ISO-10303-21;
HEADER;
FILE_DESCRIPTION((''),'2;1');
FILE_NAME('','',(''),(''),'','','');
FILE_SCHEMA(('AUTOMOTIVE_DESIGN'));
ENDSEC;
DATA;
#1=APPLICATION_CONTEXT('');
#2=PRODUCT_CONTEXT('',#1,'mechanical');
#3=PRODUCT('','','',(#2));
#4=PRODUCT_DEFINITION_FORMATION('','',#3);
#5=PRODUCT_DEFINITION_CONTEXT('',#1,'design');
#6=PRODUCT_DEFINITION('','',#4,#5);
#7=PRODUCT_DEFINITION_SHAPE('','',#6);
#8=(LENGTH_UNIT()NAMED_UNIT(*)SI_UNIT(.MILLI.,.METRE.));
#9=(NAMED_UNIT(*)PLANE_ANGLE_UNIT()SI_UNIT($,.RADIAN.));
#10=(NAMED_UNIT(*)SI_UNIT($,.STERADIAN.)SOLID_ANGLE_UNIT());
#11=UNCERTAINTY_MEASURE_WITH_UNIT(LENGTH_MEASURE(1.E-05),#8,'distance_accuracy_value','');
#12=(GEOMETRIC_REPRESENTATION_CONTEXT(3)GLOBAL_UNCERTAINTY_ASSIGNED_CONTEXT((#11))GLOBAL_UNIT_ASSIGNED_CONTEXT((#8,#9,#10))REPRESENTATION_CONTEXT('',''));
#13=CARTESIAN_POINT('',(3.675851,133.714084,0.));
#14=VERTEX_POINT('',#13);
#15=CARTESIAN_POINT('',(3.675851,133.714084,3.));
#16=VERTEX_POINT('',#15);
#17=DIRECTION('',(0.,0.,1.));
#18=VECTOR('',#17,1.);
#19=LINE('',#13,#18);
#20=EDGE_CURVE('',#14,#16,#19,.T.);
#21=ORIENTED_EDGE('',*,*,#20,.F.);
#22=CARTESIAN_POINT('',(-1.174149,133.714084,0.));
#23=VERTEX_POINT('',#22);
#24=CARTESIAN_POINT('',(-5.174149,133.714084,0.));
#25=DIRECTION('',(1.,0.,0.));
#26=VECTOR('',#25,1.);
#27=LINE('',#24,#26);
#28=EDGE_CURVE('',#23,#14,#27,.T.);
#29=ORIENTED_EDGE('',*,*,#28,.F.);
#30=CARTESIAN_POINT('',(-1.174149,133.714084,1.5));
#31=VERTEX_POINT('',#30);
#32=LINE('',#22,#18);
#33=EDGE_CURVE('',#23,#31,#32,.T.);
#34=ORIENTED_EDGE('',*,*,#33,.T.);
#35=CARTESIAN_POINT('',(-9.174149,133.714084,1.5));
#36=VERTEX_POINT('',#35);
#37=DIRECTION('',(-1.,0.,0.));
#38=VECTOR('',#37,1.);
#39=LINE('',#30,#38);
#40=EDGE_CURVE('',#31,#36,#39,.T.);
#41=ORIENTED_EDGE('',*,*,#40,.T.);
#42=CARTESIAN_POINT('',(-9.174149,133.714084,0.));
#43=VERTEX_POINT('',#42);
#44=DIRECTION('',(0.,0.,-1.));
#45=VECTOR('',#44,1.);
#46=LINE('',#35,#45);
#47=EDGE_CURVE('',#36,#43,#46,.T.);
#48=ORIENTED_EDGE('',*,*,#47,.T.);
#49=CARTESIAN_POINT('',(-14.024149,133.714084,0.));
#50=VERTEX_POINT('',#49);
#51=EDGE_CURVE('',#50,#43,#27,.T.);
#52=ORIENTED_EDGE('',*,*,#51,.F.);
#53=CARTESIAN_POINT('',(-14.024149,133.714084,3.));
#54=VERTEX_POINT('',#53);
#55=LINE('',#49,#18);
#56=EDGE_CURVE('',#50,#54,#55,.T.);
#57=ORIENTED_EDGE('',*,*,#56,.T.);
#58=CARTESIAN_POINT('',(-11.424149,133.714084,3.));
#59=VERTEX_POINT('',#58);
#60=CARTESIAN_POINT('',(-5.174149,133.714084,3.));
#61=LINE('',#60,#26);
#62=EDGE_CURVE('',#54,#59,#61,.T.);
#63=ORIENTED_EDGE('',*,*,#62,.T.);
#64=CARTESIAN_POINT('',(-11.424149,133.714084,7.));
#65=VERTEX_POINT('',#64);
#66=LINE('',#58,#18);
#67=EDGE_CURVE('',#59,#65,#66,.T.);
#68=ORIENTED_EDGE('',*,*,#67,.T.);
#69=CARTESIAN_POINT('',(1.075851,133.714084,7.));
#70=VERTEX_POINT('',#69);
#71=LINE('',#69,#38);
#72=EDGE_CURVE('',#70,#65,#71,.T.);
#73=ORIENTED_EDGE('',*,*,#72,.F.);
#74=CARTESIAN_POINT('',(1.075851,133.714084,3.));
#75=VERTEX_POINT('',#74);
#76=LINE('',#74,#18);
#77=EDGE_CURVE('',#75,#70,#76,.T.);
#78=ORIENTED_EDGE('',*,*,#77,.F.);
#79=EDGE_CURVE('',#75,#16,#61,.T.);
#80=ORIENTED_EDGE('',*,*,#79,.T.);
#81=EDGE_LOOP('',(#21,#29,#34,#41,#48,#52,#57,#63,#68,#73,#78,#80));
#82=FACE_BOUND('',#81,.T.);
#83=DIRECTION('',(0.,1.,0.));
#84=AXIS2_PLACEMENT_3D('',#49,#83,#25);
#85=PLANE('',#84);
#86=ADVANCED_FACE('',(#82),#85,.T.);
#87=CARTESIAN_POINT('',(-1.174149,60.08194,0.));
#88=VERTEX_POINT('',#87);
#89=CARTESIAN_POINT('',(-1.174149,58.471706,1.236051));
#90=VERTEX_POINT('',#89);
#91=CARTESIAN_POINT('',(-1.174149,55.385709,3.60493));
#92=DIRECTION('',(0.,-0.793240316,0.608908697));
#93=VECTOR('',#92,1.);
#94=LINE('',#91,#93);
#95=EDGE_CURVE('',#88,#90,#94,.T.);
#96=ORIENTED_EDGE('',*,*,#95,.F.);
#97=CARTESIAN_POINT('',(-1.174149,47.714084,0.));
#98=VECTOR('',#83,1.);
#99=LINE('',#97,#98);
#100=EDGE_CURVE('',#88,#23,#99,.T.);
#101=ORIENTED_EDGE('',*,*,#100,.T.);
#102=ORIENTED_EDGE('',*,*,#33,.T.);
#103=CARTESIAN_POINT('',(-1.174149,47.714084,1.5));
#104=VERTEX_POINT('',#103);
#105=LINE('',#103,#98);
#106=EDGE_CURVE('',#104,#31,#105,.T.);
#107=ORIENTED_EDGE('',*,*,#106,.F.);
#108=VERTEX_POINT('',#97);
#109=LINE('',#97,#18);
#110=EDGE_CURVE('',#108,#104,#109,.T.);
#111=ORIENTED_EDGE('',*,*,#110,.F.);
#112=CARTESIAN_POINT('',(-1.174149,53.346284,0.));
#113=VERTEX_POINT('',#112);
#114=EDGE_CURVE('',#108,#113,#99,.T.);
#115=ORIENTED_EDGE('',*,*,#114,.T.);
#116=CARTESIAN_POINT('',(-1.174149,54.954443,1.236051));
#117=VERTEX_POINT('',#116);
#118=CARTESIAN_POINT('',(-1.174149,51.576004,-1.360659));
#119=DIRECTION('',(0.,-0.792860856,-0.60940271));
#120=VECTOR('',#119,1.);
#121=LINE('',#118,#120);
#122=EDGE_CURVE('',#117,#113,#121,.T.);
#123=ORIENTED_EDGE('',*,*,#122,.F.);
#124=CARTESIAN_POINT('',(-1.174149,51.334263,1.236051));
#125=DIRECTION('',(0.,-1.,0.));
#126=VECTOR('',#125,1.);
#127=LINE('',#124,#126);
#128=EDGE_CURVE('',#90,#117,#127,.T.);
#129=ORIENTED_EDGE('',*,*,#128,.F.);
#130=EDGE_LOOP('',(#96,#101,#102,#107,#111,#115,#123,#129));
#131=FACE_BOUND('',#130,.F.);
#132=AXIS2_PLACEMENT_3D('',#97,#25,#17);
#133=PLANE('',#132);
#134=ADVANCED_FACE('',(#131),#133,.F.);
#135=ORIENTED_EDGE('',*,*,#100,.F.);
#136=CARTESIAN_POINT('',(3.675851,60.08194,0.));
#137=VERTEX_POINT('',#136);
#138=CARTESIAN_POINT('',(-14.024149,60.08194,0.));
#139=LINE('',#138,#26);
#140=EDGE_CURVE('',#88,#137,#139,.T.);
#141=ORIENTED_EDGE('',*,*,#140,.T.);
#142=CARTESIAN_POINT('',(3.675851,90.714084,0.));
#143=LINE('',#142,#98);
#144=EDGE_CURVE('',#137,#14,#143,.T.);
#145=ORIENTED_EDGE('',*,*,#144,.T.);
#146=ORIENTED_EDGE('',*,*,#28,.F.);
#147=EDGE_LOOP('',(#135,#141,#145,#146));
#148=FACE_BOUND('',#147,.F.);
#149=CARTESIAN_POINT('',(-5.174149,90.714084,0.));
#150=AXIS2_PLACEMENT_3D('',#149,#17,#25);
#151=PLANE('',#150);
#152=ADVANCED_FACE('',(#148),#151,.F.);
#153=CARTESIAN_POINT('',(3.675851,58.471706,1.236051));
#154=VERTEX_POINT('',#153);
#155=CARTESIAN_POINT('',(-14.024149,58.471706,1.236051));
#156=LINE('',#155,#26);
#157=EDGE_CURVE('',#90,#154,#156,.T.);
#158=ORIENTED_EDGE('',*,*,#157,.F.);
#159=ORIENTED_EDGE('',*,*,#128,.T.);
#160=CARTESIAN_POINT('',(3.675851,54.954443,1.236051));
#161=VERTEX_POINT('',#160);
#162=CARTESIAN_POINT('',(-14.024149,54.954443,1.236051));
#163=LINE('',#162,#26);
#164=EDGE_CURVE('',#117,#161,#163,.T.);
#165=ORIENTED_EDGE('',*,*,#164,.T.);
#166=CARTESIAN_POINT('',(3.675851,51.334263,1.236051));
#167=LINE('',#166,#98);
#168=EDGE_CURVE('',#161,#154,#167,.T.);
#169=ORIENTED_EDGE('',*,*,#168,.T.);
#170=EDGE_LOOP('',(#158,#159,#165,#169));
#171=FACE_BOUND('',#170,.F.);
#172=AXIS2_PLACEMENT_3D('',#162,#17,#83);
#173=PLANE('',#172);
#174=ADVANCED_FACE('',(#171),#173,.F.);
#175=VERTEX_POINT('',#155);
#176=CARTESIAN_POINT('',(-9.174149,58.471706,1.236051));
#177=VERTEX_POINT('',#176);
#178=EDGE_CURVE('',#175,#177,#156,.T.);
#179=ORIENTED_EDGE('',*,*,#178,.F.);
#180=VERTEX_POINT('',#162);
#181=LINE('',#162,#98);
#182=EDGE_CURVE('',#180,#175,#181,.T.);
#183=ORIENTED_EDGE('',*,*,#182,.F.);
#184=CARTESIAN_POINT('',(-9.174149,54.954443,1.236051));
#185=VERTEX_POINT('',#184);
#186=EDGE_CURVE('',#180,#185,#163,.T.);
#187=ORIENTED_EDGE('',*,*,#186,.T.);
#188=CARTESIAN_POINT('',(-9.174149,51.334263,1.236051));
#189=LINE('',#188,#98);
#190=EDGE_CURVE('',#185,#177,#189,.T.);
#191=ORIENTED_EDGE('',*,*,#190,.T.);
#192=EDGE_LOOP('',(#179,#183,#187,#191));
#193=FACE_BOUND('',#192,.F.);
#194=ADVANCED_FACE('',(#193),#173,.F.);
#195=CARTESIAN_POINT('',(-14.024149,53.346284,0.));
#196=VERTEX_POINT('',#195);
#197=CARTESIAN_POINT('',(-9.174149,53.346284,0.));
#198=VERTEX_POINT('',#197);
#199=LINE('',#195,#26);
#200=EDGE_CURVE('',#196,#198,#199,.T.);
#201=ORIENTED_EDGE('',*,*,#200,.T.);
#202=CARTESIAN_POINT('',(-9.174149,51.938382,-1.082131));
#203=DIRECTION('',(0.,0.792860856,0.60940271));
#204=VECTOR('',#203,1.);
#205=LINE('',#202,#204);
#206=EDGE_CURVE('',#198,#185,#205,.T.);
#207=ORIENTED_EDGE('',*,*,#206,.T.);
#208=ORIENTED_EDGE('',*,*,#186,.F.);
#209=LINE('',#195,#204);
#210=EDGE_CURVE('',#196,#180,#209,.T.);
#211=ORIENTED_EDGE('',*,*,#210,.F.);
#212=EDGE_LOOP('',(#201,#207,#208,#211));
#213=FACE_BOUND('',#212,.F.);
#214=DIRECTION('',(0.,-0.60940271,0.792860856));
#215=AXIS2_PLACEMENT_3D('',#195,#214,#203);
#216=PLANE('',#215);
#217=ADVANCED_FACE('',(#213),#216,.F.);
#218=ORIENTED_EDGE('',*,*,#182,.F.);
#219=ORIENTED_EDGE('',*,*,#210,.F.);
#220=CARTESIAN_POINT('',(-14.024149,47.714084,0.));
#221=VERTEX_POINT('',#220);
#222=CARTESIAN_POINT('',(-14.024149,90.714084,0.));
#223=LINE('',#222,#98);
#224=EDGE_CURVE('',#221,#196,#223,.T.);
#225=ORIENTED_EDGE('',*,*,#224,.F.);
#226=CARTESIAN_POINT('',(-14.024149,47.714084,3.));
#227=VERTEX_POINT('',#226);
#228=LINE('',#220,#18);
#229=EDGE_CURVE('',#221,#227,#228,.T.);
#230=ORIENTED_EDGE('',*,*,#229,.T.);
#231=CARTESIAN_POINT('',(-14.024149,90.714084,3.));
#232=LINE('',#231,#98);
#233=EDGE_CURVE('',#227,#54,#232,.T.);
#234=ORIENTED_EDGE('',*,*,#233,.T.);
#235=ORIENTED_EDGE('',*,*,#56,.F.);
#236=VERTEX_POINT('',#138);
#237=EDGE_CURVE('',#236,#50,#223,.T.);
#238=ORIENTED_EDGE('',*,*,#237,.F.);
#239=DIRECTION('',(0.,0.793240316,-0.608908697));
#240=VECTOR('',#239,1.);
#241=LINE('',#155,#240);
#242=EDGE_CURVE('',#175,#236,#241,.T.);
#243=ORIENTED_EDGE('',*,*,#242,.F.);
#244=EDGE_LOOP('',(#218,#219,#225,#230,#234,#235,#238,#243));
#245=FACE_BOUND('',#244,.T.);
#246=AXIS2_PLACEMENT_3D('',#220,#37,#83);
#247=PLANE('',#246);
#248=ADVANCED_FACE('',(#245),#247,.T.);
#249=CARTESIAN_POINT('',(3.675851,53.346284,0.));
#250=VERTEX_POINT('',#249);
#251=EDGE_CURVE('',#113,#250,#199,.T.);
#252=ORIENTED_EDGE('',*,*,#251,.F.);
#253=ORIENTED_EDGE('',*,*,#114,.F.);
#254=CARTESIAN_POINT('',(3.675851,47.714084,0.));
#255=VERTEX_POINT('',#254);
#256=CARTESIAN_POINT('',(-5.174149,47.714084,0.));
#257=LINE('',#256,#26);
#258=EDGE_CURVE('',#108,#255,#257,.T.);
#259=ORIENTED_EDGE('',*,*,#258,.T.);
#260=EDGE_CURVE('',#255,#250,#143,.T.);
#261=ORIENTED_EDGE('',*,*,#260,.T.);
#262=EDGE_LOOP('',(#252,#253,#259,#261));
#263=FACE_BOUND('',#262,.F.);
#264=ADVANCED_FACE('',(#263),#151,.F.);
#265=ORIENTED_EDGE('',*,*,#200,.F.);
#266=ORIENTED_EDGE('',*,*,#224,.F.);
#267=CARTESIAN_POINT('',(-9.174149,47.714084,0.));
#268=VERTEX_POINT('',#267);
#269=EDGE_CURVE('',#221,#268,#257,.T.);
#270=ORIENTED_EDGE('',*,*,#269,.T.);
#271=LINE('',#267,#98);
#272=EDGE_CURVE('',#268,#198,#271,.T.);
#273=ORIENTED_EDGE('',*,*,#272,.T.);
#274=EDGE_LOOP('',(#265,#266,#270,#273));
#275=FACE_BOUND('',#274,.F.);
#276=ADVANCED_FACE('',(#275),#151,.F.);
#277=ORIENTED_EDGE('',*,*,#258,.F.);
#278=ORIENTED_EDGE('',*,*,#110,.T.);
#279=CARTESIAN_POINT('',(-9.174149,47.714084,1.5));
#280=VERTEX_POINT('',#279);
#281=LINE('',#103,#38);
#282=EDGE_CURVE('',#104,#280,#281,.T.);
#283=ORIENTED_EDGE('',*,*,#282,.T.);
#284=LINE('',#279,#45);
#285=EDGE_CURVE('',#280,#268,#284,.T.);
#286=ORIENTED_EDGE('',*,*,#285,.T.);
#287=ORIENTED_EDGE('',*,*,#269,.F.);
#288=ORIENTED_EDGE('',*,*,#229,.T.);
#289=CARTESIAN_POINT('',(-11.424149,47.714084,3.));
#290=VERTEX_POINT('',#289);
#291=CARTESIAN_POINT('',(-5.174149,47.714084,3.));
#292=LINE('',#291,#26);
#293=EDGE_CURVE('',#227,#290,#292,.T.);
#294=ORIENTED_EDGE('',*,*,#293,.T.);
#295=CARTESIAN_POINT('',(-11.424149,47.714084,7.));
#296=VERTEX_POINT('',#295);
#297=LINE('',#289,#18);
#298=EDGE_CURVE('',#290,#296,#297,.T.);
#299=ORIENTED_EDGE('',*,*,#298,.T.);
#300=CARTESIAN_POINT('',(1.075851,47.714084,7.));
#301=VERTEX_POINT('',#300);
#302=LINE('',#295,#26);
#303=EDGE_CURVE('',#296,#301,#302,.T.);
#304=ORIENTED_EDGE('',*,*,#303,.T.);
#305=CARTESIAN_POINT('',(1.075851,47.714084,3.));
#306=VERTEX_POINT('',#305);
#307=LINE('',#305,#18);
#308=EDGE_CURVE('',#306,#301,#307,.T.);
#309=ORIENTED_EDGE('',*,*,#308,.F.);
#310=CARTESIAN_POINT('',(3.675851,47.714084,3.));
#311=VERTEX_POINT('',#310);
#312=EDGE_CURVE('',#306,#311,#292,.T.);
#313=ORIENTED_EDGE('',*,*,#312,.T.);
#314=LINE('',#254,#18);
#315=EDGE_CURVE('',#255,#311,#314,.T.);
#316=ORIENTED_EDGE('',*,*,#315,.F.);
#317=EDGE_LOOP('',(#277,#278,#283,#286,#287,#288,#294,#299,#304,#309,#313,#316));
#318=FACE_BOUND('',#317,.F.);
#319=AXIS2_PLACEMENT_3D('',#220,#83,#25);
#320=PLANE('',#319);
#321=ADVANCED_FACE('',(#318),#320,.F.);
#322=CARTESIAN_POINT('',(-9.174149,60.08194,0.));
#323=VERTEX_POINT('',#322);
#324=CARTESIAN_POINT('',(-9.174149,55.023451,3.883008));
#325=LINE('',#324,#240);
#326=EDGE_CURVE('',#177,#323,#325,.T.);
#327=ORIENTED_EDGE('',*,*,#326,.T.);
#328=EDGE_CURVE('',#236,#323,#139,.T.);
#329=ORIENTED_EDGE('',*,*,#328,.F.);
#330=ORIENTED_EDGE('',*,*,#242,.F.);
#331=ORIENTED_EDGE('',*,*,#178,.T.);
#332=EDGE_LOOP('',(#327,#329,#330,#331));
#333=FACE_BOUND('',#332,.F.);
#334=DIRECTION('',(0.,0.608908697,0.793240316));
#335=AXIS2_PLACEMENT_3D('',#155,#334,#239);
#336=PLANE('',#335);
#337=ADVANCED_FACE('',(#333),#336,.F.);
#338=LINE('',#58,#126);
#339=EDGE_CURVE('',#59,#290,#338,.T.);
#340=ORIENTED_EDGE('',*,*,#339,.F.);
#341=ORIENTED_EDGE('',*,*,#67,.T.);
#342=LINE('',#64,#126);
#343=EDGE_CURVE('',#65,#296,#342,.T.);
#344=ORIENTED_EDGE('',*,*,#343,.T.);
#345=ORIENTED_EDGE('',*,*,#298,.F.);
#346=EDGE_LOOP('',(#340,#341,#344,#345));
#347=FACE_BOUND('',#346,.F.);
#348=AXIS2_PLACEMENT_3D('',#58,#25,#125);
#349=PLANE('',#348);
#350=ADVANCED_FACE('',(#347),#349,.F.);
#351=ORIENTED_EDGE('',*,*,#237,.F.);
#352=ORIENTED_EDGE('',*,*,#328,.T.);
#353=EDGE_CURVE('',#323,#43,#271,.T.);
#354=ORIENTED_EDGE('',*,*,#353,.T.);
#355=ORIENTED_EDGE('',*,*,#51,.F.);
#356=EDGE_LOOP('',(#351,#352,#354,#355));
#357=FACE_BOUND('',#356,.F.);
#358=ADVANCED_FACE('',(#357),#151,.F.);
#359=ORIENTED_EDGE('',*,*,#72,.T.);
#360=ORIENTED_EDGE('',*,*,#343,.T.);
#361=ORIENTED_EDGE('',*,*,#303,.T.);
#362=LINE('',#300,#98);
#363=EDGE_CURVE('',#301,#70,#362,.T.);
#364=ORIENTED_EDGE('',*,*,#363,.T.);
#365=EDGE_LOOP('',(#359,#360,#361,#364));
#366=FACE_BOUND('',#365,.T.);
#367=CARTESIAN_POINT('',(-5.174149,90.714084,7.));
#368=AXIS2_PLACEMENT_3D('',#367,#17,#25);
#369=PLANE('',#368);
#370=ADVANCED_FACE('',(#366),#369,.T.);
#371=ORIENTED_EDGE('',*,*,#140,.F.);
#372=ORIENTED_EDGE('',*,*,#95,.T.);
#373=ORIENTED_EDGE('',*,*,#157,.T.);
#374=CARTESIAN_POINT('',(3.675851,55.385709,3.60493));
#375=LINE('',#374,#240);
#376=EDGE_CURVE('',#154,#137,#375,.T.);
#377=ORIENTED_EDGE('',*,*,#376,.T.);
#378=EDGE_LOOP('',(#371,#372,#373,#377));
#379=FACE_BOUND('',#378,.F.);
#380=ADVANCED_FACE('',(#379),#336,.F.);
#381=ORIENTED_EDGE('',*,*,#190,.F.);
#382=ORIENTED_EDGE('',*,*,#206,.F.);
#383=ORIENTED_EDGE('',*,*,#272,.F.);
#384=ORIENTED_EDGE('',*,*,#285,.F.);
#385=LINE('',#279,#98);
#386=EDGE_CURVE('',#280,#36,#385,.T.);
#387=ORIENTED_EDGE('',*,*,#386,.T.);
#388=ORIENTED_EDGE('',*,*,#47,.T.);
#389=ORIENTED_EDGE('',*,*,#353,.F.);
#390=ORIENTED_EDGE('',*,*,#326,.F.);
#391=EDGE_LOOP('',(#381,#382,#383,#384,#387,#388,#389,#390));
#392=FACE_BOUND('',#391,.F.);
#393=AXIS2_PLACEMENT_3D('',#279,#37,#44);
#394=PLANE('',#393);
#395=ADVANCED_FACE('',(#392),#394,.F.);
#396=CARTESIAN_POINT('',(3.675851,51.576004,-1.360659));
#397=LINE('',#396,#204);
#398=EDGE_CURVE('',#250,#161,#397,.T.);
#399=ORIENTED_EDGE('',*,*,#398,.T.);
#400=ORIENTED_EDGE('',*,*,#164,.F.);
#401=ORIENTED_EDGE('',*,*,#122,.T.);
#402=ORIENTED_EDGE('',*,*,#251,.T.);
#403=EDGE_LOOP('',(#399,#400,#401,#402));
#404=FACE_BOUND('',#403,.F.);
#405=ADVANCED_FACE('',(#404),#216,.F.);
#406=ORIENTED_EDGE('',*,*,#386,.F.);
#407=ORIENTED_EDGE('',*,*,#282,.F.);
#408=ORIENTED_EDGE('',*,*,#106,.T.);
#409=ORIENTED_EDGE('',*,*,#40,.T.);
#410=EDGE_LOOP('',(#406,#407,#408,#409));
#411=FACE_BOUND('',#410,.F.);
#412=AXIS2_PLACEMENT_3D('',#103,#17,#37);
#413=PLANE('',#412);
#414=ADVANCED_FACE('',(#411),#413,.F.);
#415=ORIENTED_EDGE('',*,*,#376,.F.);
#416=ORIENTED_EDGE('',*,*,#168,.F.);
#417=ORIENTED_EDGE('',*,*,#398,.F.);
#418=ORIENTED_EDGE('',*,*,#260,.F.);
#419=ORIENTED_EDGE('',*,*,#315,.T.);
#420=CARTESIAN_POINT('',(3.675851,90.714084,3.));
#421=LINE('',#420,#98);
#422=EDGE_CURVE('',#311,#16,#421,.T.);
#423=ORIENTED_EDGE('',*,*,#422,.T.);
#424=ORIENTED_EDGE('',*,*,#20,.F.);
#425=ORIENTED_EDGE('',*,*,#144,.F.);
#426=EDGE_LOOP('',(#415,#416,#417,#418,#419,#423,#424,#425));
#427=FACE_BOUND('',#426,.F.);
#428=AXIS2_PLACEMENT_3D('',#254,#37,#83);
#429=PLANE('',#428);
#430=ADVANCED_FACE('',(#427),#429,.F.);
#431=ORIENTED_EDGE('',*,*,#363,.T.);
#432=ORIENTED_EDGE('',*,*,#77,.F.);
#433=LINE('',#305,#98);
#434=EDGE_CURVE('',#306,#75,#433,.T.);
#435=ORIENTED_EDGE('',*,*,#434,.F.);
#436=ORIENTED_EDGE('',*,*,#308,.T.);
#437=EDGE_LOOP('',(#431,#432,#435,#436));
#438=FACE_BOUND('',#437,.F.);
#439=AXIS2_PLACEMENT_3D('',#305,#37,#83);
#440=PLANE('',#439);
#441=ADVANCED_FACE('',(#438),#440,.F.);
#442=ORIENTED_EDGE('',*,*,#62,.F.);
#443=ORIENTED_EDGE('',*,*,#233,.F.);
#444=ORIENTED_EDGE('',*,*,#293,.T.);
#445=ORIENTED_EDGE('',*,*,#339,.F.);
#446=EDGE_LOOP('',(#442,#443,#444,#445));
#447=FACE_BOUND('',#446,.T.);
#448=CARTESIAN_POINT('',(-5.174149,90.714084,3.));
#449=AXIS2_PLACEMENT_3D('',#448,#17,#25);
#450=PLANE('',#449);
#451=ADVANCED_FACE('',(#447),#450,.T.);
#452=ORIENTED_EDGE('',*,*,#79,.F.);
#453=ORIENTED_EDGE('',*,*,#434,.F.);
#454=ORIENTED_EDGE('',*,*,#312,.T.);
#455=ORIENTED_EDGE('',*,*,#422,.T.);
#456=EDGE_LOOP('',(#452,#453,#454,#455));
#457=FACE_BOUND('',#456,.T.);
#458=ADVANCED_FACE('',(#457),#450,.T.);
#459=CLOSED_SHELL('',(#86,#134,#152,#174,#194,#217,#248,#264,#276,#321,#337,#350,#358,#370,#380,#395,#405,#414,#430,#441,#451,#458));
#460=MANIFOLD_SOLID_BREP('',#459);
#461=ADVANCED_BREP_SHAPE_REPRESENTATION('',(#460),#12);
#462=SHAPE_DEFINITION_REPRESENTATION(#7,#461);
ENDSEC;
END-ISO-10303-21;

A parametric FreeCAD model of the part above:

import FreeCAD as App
import Part
import Sketcher

V = App.Vector
Q = App.Units.Quantity


def add_polygon(sketch, points):
    """Adds a closed chain of lines whose ends are joined by coincident constraints."""
    first, n = sketch.GeometryCount, len(points)
    for a, b in zip(points, points[1:] + points[:1]):
        sketch.addGeometry(Part.LineSegment(App.Vector(*a, 0), App.Vector(*b, 0)), False)
    for i in range(n):
        sketch.addConstraint(Sketcher.Constraint("Coincident", first + i, 2, first + (i + 1) % n, 1))

doc = App.newDocument("Part")
params = doc.addObject("Spreadsheet::Sheet", "Params")
for row, (alias, value) in enumerate([
    ("sketch1_height", "86 mm"),
    ("sketch1_width", "17.7 mm"),
    ("pad1_length", "3 mm"),
    ("sketch2_height", "86 mm"),
    ("sketch2_width", "12.5 mm"),
    ("pad2_length", "4 mm"),
    ("sketch3_width", "8 mm"),
    ("sketch3_height", "1.5 mm"),
    ("pocket1_length", "86 mm"),
    ("pocket2_length", "25 mm"),
], start=1):
    params.set(f"A{row}", alias)
    params.set(f"B{row}", "=" + value)
    params.setAlias(f"B{row}", alias)

body = doc.addObject("PartDesign::Body", "Body")

# Sketch on XY plane
sketch1 = doc.addObject("Sketcher::SketchObject", "Sketch")
body.addObject(sketch1)
sketch1.AttachmentSupport = (doc.XY_Plane, [""])
sketch1.MapMode = "FlatFace"
add_polygon(sketch1, [(-14.024149, 133.714084), (-14.024149, 47.714084), (3.675851, 47.714084), (3.675851, 133.714084)])  # lines 0-3
sketch1.addConstraint([
    Sketcher.Constraint("Vertical", 0),
    Sketcher.Constraint("Horizontal", 1),
    Sketcher.Constraint("Vertical", 2),
    Sketcher.Constraint("Horizontal", 3),
    Sketcher.Constraint("DistanceY", 0, 2, 0, 1, Q("86 mm")),
    Sketcher.Constraint("DistanceX", 1, 1, 1, 2, Q("17.7 mm")),
    Sketcher.Constraint("DistanceX", 0, 2, -1, 1, Q("14.024149 mm")),
    Sketcher.Constraint("DistanceY", -1, 1, 0, 2, Q("47.714084 mm")),
])
sketch1.setExpression("Constraints[8]", "Params.sketch1_height")
sketch1.setExpression("Constraints[9]", "Params.sketch1_width")
pad1 = doc.addObject("PartDesign::Pad", "Pad")
body.addObject(pad1)
pad1.Profile = sketch1
pad1.setExpression("Length", "Params.pad1_length")

# Sketch on XY plane
sketch2 = doc.addObject("Sketcher::SketchObject", "Sketch001")
body.addObject(sketch2)
sketch2.AttachmentSupport = (doc.XY_Plane, [""])
sketch2.MapMode = "FlatFace"
sketch2.AttachmentOffset = App.Placement(V(0, 0, 3), App.Rotation())
add_polygon(sketch2, [(-11.424149, 47.714084), (1.075851, 47.714084), (1.075851, 133.714084), (-11.424149, 133.714084)])  # lines 0-3
sketch2.addConstraint([
    Sketcher.Constraint("Horizontal", 0),
    Sketcher.Constraint("Vertical", 1),
    Sketcher.Constraint("Horizontal", 2),
    Sketcher.Constraint("Vertical", 3),
    Sketcher.Constraint("DistanceY", 1, 1, 1, 2, Q("86 mm")),
    Sketcher.Constraint("DistanceX", 0, 1, 0, 2, Q("12.5 mm")),
    Sketcher.Constraint("DistanceX", -1, 1, 0, 2, Q("1.075851 mm")),
    Sketcher.Constraint("DistanceY", -1, 1, 0, 2, Q("47.714084 mm")),
])
sketch2.setExpression("Constraints[8]", "Params.sketch2_height")
sketch2.setExpression("Constraints[9]", "Params.sketch2_width")
pad2 = doc.addObject("PartDesign::Pad", "Pad001")
body.addObject(pad2)
pad2.Profile = sketch2
pad2.setExpression("Length", "Params.pad2_length")

# Sketch on XZ plane
sketch3 = doc.addObject("Sketcher::SketchObject", "Sketch002")
body.addObject(sketch3)
sketch3.AttachmentSupport = (doc.XZ_Plane, [""])
sketch3.MapMode = "FlatFace"
sketch3.AttachmentOffset = App.Placement(V(0, 0, -47.714084), App.Rotation())
add_polygon(sketch3, [(-9.174149, 0), (-1.174149, 0), (-1.174149, 1.5), (-9.174149, 1.5)])  # lines 0-3
sketch3.addConstraint([
    Sketcher.Constraint("Horizontal", 0),
    Sketcher.Constraint("Vertical", 1),
    Sketcher.Constraint("Horizontal", 2),
    Sketcher.Constraint("Vertical", 3),
    Sketcher.Constraint("PointOnObject", 0, 2, -1),
    Sketcher.Constraint("DistanceX", 0, 1, 0, 2, Q("8 mm")),
    Sketcher.Constraint("DistanceY", 1, 1, 1, 2, Q("1.5 mm")),
    Sketcher.Constraint("DistanceX", 0, 2, -1, 1, Q("1.174149 mm")),
])
sketch3.setExpression("Constraints[9]", "Params.sketch3_width")
sketch3.setExpression("Constraints[10]", "Params.sketch3_height")
pocket1 = doc.addObject("PartDesign::Pocket", "Pocket")
body.addObject(pocket1)
pocket1.Profile = sketch3
pocket1.setExpression("Length", "Params.pocket1_length")

# Sketch on YZ plane
sketch4 = doc.addObject("Sketcher::SketchObject", "Sketch003")
body.addObject(sketch4)
sketch4.AttachmentSupport = (doc.YZ_Plane, [""])
sketch4.MapMode = "FlatFace"
sketch4.AttachmentOffset = App.Placement(V(0, 0, -14.024149), App.Rotation())
add_polygon(sketch4, [(60.08194, 0), (53.346284, 0), (54.954443, 1.236051), (58.471706, 1.236051)])  # lines 0-3
sketch4.addConstraint([
    Sketcher.Constraint("Horizontal", 0),
    Sketcher.Constraint("Horizontal", 2),
    Sketcher.Constraint("PointOnObject", 0, 2, -1),
    Sketcher.Constraint("Distance", 1, Q("2.028299 mm")),
    Sketcher.Constraint("DistanceX", 0, 2, 0, 1, Q("6.735656 mm")),
    Sketcher.Constraint("DistanceX", 2, 1, 2, 2, Q("3.517263 mm")),
    Sketcher.Constraint("DistanceY", -1, 1, 1, 2, Q("1.236051 mm")),
    Sketcher.Constraint("DistanceX", -1, 1, 3, 2, Q("60.08194 mm")),
])
pocket2 = doc.addObject("PartDesign::Pocket", "Pocket001")
body.addObject(pocket2)
pocket2.Profile = sketch4
pocket2.setExpression("Length", "Params.pocket2_length")
pocket2.Reversed = True

doc.recompute()
